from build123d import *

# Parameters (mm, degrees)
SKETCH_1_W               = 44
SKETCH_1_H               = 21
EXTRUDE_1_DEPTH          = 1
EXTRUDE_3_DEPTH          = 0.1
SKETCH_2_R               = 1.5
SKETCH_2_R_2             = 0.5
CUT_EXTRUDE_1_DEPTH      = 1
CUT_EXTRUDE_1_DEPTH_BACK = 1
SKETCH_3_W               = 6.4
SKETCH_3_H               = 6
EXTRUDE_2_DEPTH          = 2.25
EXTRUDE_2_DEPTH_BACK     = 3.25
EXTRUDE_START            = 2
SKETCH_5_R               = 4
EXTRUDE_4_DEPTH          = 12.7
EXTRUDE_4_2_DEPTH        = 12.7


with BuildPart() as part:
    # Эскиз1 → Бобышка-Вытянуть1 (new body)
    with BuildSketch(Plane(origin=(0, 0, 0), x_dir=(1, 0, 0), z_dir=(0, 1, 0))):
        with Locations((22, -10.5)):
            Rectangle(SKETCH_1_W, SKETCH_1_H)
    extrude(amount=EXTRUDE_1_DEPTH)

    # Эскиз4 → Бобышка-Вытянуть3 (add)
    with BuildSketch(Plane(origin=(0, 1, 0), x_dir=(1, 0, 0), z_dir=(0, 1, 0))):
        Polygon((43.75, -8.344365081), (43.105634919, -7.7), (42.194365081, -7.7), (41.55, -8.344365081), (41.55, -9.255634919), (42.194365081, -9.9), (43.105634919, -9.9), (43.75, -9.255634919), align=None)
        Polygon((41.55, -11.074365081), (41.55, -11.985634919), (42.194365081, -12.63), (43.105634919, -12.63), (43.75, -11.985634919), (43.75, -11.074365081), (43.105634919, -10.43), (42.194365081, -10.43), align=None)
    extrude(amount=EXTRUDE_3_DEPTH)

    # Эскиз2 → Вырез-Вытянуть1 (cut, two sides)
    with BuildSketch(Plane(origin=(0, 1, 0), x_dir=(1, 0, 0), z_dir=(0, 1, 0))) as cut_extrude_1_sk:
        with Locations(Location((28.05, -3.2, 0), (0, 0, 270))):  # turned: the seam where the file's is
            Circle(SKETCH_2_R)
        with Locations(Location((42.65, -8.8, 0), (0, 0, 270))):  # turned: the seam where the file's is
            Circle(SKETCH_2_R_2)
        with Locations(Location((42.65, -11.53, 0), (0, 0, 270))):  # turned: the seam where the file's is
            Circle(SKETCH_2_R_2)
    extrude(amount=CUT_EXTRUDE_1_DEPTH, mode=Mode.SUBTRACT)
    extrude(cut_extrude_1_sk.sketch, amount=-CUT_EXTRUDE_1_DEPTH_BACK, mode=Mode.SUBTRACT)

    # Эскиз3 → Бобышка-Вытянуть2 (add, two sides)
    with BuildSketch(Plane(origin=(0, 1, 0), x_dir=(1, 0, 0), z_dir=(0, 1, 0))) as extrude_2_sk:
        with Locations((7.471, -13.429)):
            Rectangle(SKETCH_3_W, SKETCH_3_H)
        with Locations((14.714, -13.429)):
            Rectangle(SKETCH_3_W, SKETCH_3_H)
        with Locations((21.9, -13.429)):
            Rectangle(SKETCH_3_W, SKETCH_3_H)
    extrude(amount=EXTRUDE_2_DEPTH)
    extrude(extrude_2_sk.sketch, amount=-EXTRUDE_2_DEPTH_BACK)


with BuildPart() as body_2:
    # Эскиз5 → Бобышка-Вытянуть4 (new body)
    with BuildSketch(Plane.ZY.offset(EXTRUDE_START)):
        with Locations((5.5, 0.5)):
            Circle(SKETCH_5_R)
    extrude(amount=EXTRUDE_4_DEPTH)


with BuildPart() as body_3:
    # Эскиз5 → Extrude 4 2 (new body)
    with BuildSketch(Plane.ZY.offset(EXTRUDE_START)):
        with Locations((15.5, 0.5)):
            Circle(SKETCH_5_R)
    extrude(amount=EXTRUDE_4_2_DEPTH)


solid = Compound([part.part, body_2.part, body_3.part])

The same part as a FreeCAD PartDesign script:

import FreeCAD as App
import Part
import Sketcher

V = App.Vector


def add_polygon(sketch, points):
    """Adds a closed chain of lines whose ends are joined by coincident constraints."""
    first, n = sketch.GeometryCount, len(points)
    for a, b in zip(points, points[1:] + points[:1]):
        sketch.addGeometry(Part.LineSegment(App.Vector(*a, 0), App.Vector(*b, 0)), False)
    for i in range(n):
        sketch.addConstraint(Sketcher.Constraint("Coincident", first + i, 2, first + (i + 1) % n, 1))

doc = App.newDocument("Part")
body = doc.addObject("PartDesign::Body", "Body")

# Sketch on XZ plane
sketch1 = doc.addObject("Sketcher::SketchObject", "Sketch")
body.addObject(sketch1)
sketch1.AttachmentSupport = (doc.XZ_Plane, [""])
sketch1.MapMode = "FlatFace"
add_polygon(sketch1, [(0, 0), (0, 21), (44, 21), (44, 0)])  # lines 0-3
sketch1.addConstraint([
    Sketcher.Constraint("Vertical", 0),
    Sketcher.Constraint("Horizontal", 1),
    Sketcher.Constraint("Vertical", 2),
    Sketcher.Constraint("Horizontal", 3),
    Sketcher.Constraint("Coincident", 3, 2, -1, 1),
    Sketcher.Constraint("DistanceX", 1, 1, 1, 2, 44.0),
    Sketcher.Constraint("DistanceY", 0, 1, 0, 2, 21.0),
])
pad1 = doc.addObject("PartDesign::Pad", "Pad")
body.addObject(pad1)
pad1.Profile = sketch1
pad1.Length = 1
pad1.Reversed = True

# Sketch on XZ plane
sketch2 = doc.addObject("Sketcher::SketchObject", "Sketch001")
body.addObject(sketch2)
sketch2.AttachmentSupport = (doc.XZ_Plane, [""])
sketch2.MapMode = "FlatFace"
sketch2.AttachmentOffset = App.Placement(V(0, 0, -1), App.Rotation())
add_polygon(sketch2, [(43.8, 8.3), (43.1, 7.7), (42.2, 7.7), (41.5, 8.3), (41.5, 9.3), (42.2, 9.9), (43.1, 9.9), (43.8, 9.3)])  # lines 0-7
add_polygon(sketch2, [(41.5, 11.1), (41.5, 12), (42.2, 12.6), (43.1, 12.6), (43.8, 12), (43.8, 11.1), (43.1, 10.4), (42.2, 10.4)])  # lines 8-15
sketch2.addConstraint([
    Sketcher.Constraint("Horizontal", 1),
    Sketcher.Constraint("Vertical", 3),
    Sketcher.Constraint("Horizontal", 5),
    Sketcher.Constraint("Vertical", 7),
    Sketcher.Constraint("Vertical", 8),
    Sketcher.Constraint("Horizontal", 10),
    Sketcher.Constraint("Vertical", 12),
    Sketcher.Constraint("Horizontal", 14),
    Sketcher.Constraint("Perpendicular", 0, 2),
    Sketcher.Constraint("Perpendicular", 2, 4),
    Sketcher.Constraint("Perpendicular", 4, 6),
    Sketcher.Constraint("Perpendicular", 6, 9),
    Sketcher.Constraint("Perpendicular", 9, 11),
    Sketcher.Constraint("Perpendicular", 11, 13),
    Sketcher.Constraint("Perpendicular", 13, 15),
    Sketcher.Constraint("Horizontal", 3, 2, 6, 2),
    Sketcher.Constraint("Horizontal", 2, 2, 7, 2),
    Sketcher.Constraint("Horizontal", 8, 2, 11, 2),
    Sketcher.Constraint("Horizontal", 12, 2, 15, 2),
    Sketcher.Constraint("Vertical", 1, 2, 4, 2),
    Sketcher.Constraint("Vertical", 0, 2, 5, 2),
    Sketcher.Constraint("Vertical", 3, 2, 8, 2),
    Sketcher.Constraint("Vertical", 4, 2, 9, 2),
    Sketcher.Constraint("Vertical", 5, 2, 10, 2),
    Sketcher.Constraint("Vertical", 10, 2, 13, 2),
    Sketcher.Constraint("Equal", 14, 3),
    Sketcher.Constraint("Equal", 7, 8),
    Sketcher.Constraint("DistanceY", -1, 1, 0, 2, 7.7),
    Sketcher.Constraint("DistanceY", -1, 1, 4, 2, 9.9),
    Sketcher.Constraint("DistanceX", -1, 1, 2, 2, 41.55),
    Sketcher.Constraint("DistanceY", -1, 1, 9, 2, 12.63),
    Sketcher.Constraint("DistanceX", 1, 2, 1, 1, 0.91127),
])
pad2 = doc.addObject("PartDesign::Pad", "Pad001")
body.addObject(pad2)
pad2.Profile = sketch2
pad2.Length = 0.1
pad2.Reversed = True

# Sketch on XZ plane
sketch3 = doc.addObject("Sketcher::SketchObject", "Sketch002")
body.addObject(sketch3)
sketch3.AttachmentSupport = (doc.XZ_Plane, [""])
sketch3.MapMode = "FlatFace"
sketch3.AttachmentOffset = App.Placement(V(0, 0, -1), App.Rotation())
sketch3.addGeometry([
    Part.Circle(V(28.1, 3.2, 0), V(0, 0, 1), 1.5),
    Part.Circle(V(42.6, 8.8, 0), V(0, 0, 1), 0.5),
    Part.Circle(V(42.6, 11.5, 0), V(0, 0, 1), 0.5),
], False)
sketch3.addConstraint([
    Sketcher.Constraint("Equal", 1, 2),
    Sketcher.Constraint("Vertical", 1, 3, 2, 3),
    Sketcher.Constraint("Diameter", 0, 3.0),
    Sketcher.Constraint("Diameter", 1, 1.0),
    Sketcher.Constraint("DistanceY", -1, 1, 0, 3, 3.2),
    Sketcher.Constraint("DistanceY", -1, 1, 1, 3, 8.8),
    Sketcher.Constraint("DistanceX", 0, 3, 1, 3, 14.6),
    Sketcher.Constraint("DistanceX", -1, 1, 0, 3, 28.05),
    Sketcher.Constraint("DistanceY", -1, 1, 2, 3, 11.53),
])
pocket1 = doc.addObject("PartDesign::Pocket", "Pocket")
body.addObject(pocket1)
pocket1.Profile = sketch3
pocket1.Type = "ThroughAll"
pocket1.Midplane = True

# Sketch on XZ plane
sketch4 = doc.addObject("Sketcher::SketchObject", "Sketch003")
body.addObject(sketch4)
sketch4.AttachmentSupport = (doc.XZ_Plane, [""])
sketch4.MapMode = "FlatFace"
sketch4.AttachmentOffset = App.Placement(V(0, 0, -1), App.Rotation())
add_polygon(sketch4, [(4, 10), (4, 16), (11, 16), (11, 10)])  # lines 0-3
add_polygon(sketch4, [(12, 10), (12, 16), (18, 16), (18, 10)])  # lines 4-7
add_polygon(sketch4, [(19, 10), (19, 16), (25, 16), (25, 10)])  # lines 8-11
sketch4.addConstraint([
    Sketcher.Constraint("Vertical", 0),
    Sketcher.Constraint("Horizontal", 1),
    Sketcher.Constraint("Vertical", 2),
    Sketcher.Constraint("Horizontal", 3),
    Sketcher.Constraint("Vertical", 4),
    Sketcher.Constraint("Horizontal", 5),
    Sketcher.Constraint("Vertical", 6),
    Sketcher.Constraint("Horizontal", 7),
    Sketcher.Constraint("Vertical", 8),
    Sketcher.Constraint("Horizontal", 9),
    Sketcher.Constraint("Vertical", 10),
    Sketcher.Constraint("Horizontal", 11),
    Sketcher.Constraint("Horizontal", 1, 2, 4, 2),
    Sketcher.Constraint("Horizontal", 3, 2, 6, 2),
    Sketcher.Constraint("Horizontal", 5, 2, 8, 2),
    Sketcher.Constraint("Horizontal", 7, 2, 10, 2),
    Sketcher.Constraint("Equal", 3, 5),
    Sketcher.Constraint("Equal", 7, 9),
    Sketcher.Constraint("DistanceY", 0, 1, 0, 2, 6.0),
    Sketcher.Constraint("DistanceX", 1, 1, 1, 2, 6.4),
    Sketcher.Constraint("DistanceX", -1, 1, 8, 2, 18.7),
    Sketcher.Constraint("DistanceX", -1, 1, 0, 2, 4.271),
    Sketcher.Constraint("DistanceY", -1, 1, 0, 2, 16.429),
    Sketcher.Constraint("DistanceX", -1, 1, 4, 2, 11.514),
])
pad3 = doc.addObject("PartDesign::Pad", "Pad002")
body.addObject(pad3)
pad3.Profile = sketch4
pad3.Type = "TwoLengths"
pad3.Length = 2.25
pad3.Length2 = 3.25
pad3.Reversed = True
body2 = doc.addObject("PartDesign::Body", "Body001")

# Sketch on YZ plane
sketch5 = doc.addObject("Sketcher::SketchObject", "Sketch004")
body2.addObject(sketch5)
sketch5.AttachmentSupport = (doc.getObject("YZ_Plane001"), [""])
sketch5.MapMode = "FlatFace"
sketch5.AttachmentOffset = App.Placement(V(0, 0, -2), App.Rotation())
sketch5.addGeometry(Part.Circle(V(0.5, 5.5, 0), V(0, 0, 1), 4), False)
sketch5.addConstraint([
    Sketcher.Constraint("Diameter", 0, 8.0),
    Sketcher.Constraint("DistanceX", -1, 1, 0, 3, 0.5),
    Sketcher.Constraint("DistanceY", -1, 1, 0, 3, 5.5),
])
pad4 = doc.addObject("PartDesign::Pad", "Pad003")
body2.addObject(pad4)
pad4.Profile = sketch5
pad4.Length = 12.7
pad4.Reversed = True
body3 = doc.addObject("PartDesign::Body", "Body002")

# Sketch on YZ plane
sketch6 = doc.addObject("Sketcher::SketchObject", "Sketch005")
body3.addObject(sketch6)
sketch6.AttachmentSupport = (doc.getObject("YZ_Plane002"), [""])
sketch6.MapMode = "FlatFace"
sketch6.AttachmentOffset = App.Placement(V(0, 0, -2), App.Rotation())
sketch6.addGeometry(Part.Circle(V(0.5, 15.5, 0), V(0, 0, 1), 4), False)
sketch6.addConstraint([
    Sketcher.Constraint("Diameter", 0, 8.0),
    Sketcher.Constraint("DistanceX", -1, 1, 0, 3, 0.5),
    Sketcher.Constraint("DistanceY", -1, 1, 0, 3, 15.5),
])
pad5 = doc.addObject("PartDesign::Pad", "Pad004")
body3.addObject(pad5)
pad5.Profile = sketch6
pad5.Length = 12.7
pad5.Reversed = True

doc.recompute()
